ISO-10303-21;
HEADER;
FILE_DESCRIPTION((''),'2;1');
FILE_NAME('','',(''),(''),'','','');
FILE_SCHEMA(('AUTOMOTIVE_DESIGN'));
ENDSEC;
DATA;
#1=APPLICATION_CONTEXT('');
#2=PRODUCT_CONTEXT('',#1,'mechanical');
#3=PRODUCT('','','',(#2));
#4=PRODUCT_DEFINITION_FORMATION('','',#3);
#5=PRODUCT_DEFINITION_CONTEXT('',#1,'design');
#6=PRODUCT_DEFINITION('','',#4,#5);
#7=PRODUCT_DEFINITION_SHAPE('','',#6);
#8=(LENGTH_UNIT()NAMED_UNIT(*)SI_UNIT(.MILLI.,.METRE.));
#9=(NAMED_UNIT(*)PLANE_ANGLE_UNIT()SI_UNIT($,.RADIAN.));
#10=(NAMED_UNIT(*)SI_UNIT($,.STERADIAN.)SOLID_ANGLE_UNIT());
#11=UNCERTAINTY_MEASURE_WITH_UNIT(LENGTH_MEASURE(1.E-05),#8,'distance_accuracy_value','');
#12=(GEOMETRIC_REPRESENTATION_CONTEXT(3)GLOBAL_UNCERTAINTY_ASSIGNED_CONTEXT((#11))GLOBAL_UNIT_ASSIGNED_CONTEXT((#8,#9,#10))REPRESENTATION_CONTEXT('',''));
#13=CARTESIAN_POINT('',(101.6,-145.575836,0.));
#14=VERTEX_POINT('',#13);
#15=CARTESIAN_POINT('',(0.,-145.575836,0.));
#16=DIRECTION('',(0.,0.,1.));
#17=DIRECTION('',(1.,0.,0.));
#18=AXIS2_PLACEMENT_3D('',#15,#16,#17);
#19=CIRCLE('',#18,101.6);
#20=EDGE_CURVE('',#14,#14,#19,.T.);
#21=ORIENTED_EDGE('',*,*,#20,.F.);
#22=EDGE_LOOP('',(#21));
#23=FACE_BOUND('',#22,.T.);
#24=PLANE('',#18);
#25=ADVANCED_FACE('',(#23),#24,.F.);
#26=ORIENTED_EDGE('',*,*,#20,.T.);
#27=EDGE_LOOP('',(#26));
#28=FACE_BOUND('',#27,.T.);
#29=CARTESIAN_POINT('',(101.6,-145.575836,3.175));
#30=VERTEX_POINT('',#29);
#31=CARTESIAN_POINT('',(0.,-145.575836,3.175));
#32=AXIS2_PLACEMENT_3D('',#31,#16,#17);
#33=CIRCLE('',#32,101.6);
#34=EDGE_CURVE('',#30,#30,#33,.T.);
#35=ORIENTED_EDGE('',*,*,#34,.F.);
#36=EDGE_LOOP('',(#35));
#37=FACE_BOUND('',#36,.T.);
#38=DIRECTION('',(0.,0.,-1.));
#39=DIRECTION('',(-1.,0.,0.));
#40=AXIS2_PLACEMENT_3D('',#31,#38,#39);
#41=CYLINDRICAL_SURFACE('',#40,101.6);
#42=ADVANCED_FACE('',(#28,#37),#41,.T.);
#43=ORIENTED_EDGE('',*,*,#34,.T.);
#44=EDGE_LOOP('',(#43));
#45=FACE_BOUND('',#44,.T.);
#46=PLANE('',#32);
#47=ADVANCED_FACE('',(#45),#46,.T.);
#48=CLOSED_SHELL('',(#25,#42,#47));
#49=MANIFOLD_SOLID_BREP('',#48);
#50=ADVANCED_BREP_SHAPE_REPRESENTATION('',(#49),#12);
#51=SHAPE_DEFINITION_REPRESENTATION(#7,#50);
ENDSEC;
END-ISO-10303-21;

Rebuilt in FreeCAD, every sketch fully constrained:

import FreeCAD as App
import Part
import Sketcher
Q = App.Units.Quantity

doc = App.newDocument("Part")
params = doc.addObject("Spreadsheet::Sheet", "Params")
for row, (alias, value) in enumerate([
    ("sketch1_diameter", "8 in"),
    ("pad1_length", "0.125 in"),
], start=1):
    params.set(f"A{row}", alias)
    params.set(f"B{row}", "=" + value)
    params.setAlias(f"B{row}", alias)

body = doc.addObject("PartDesign::Body", "Body")

sketch1 = body.newObject("Sketcher::SketchObject", "Sketch")
sketch1.AttachmentSupport = (doc.getObject("XY_Plane"), [""])
sketch1.MapMode = "FlatFace"
sketch1.addGeometry(Part.Circle(App.Vector(0, -146, 0), App.Vector(0, 0, 1), 102), False)
sketch1.addConstraint([
    Sketcher.Constraint("PointOnObject", 0, 3, -2),
    Sketcher.Constraint("Diameter", 0, Q("8 in")),
    Sketcher.Constraint("DistanceY", 0, 3, -1, 1, Q("145.575836 mm")),
])
sketch1.setExpression("Constraints[1]", "Params.sketch1_diameter")
pad1 = body.newObject("PartDesign::Pad", "Pad")
pad1.Profile = sketch1
pad1.setExpression("Length", "Params.pad1_length")

doc.recompute()
